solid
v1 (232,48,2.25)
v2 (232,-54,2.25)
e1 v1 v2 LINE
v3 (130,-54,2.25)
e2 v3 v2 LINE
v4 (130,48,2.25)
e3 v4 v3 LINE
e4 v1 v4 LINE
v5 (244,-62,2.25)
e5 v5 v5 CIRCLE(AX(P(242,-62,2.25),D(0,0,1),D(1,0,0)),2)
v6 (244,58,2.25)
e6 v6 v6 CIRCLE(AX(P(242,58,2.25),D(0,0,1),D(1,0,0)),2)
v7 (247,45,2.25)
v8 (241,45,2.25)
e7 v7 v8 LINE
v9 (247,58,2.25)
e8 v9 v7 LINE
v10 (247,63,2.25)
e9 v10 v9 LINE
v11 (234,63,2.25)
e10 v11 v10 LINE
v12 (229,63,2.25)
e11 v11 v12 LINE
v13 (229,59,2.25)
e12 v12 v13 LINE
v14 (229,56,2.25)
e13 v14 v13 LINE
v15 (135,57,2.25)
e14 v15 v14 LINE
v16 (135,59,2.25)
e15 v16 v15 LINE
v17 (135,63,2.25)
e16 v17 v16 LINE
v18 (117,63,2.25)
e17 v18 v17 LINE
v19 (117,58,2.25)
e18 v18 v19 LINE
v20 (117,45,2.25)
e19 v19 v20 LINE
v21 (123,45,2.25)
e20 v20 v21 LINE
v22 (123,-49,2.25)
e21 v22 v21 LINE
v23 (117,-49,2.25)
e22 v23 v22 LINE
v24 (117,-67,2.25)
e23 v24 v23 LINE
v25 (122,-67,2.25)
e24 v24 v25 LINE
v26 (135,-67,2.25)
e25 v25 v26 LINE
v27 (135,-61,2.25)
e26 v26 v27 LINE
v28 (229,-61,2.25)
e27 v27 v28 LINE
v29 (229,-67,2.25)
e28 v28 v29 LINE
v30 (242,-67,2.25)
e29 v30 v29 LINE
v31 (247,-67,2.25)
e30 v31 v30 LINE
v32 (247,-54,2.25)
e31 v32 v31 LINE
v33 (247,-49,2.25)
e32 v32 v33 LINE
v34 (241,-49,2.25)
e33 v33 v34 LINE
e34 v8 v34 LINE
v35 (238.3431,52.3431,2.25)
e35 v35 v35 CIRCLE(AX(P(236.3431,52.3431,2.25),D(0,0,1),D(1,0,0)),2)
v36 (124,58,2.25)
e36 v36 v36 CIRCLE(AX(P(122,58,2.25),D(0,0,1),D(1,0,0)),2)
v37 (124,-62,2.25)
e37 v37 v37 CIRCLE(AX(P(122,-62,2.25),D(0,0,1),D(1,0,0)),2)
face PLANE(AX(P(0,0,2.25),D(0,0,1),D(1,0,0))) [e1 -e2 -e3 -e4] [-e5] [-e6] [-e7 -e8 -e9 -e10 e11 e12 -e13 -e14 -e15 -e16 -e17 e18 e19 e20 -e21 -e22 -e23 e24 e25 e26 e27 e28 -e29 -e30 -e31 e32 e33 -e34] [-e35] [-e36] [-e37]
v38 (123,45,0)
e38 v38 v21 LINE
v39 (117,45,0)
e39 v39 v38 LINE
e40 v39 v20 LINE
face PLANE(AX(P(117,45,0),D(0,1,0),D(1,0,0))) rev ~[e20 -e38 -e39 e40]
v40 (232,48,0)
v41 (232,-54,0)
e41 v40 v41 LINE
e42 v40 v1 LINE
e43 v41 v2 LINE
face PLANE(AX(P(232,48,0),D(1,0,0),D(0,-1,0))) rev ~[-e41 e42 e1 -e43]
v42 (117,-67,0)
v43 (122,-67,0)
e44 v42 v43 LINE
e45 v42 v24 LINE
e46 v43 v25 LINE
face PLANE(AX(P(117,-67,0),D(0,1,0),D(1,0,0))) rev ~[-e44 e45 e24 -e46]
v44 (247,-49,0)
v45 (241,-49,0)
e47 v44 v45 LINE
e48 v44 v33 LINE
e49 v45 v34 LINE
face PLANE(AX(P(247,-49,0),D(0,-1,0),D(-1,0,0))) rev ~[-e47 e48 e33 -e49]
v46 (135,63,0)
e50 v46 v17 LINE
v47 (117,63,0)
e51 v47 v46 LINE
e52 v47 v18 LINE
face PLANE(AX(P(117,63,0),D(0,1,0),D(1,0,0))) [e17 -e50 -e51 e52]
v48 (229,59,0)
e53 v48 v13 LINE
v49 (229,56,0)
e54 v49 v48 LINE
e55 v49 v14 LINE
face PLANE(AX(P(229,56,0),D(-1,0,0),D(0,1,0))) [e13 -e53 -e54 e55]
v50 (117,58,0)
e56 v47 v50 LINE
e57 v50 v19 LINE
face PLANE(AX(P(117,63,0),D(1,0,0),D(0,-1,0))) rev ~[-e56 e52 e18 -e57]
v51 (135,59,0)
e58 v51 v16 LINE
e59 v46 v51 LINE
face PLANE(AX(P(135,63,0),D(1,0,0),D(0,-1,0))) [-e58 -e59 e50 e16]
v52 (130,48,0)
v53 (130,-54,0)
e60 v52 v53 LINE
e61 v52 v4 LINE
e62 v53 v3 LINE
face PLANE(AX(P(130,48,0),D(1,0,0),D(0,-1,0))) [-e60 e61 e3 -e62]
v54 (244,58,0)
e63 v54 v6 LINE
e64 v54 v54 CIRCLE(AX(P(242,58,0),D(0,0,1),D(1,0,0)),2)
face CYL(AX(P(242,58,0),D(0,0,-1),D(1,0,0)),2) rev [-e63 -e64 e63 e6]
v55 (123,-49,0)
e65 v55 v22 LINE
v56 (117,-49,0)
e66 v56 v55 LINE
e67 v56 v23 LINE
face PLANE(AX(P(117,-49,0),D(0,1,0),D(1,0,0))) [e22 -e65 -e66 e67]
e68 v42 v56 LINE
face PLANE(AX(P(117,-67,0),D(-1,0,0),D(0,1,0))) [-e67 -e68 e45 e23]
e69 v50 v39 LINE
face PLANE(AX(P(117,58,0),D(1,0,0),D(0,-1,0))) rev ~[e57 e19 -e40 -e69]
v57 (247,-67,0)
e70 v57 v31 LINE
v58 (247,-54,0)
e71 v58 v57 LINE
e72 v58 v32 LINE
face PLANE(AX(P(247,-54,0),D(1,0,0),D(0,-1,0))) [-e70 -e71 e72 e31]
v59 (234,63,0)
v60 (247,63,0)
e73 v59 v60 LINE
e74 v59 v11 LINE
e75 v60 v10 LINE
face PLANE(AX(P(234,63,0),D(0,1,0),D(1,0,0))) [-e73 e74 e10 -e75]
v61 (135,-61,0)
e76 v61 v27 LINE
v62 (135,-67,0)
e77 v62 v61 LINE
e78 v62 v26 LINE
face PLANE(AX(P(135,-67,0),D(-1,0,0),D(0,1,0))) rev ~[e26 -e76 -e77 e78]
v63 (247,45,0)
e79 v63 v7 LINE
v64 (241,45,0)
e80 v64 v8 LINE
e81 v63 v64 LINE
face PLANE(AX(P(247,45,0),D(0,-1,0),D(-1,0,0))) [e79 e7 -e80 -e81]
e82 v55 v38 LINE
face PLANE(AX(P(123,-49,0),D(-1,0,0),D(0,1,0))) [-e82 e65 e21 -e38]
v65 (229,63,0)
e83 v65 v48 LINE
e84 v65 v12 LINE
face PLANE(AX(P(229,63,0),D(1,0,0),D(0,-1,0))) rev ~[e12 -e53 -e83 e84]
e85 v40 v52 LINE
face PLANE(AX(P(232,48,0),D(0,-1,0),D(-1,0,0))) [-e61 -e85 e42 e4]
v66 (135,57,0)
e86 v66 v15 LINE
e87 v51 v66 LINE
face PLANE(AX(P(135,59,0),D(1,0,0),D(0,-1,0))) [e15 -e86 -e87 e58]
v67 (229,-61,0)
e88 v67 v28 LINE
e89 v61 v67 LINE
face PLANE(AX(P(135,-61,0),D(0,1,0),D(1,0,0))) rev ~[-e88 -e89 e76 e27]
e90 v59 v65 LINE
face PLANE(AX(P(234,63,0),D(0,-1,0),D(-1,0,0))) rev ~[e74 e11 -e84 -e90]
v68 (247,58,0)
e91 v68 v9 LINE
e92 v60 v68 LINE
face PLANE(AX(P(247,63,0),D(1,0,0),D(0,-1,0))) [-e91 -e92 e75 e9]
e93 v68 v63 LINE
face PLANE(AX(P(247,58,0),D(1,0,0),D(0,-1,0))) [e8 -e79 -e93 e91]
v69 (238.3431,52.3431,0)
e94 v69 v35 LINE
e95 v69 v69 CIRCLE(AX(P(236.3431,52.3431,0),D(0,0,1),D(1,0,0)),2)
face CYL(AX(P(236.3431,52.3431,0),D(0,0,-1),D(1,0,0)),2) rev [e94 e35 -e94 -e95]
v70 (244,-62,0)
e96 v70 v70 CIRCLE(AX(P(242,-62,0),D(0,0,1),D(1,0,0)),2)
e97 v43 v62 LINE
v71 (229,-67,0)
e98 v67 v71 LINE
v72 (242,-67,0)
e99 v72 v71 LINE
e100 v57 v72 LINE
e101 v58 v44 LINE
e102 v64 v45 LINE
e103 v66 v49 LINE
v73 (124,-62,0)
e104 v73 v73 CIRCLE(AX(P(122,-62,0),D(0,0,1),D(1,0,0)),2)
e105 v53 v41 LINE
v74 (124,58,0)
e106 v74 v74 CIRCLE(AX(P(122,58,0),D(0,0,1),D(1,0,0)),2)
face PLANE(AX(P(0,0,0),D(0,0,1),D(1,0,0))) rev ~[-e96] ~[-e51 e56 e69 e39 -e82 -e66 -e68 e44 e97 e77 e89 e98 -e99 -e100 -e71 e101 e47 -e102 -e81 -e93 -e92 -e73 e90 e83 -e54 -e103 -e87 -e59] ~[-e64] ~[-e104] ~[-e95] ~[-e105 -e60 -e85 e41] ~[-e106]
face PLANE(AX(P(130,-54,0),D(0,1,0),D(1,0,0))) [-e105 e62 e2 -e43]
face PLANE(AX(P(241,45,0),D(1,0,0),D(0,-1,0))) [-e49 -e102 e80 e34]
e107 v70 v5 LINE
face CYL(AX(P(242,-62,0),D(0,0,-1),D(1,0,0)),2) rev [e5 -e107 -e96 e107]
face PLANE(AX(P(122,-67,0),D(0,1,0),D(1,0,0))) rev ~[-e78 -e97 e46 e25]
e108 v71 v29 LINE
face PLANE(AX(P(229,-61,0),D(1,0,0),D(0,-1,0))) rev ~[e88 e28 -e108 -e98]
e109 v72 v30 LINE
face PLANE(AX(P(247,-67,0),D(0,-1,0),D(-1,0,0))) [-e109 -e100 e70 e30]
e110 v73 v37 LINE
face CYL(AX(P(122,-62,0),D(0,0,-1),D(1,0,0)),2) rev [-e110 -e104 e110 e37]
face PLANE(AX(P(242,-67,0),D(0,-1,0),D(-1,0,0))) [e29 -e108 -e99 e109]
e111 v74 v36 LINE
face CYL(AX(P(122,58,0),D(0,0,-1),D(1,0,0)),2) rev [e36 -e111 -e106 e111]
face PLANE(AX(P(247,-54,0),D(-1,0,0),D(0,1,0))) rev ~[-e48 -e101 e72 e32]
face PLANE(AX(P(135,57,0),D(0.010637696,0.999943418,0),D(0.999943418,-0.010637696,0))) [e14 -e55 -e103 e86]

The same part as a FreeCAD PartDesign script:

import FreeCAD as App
import Part
import Sketcher

V = App.Vector
Q = App.Units.Quantity

doc = App.newDocument("Part")
body = doc.addObject("PartDesign::Body", "Body")

# Sketch on XY plane
sketch1 = body.newObject("Sketcher::SketchObject", "Sketch")
sketch1.AttachmentSupport = (doc.getObject("XY_Plane"), [""])
sketch1.MapMode = "FlatFace"
sketch1.addGeometry([
    Part.LineSegment(V(247, 63, 0), V(229, 63, 0)),  # 0
    Part.LineSegment(V(229, 63, 0), V(229, 56, 0)),  # 1
    Part.LineSegment(V(229, 56, 0), V(135, 57, 0)),  # 2
    Part.LineSegment(V(135, 57, 0), V(135, 63, 0)),  # 3
    Part.LineSegment(V(135, 63, 0), V(117, 63, 0)),  # 4
    Part.LineSegment(V(117, 63, 0), V(117, 45, 0)),  # 5
    Part.LineSegment(V(117, 45, 0), V(123, 45, 0)),  # 6
    Part.LineSegment(V(123, 45, 0), V(123, -49, 0)),  # 7
    Part.LineSegment(V(123, -49, 0), V(117, -49, 0)),  # 8
    Part.LineSegment(V(117, -49, 0), V(117, -67, 0)),  # 9
    Part.LineSegment(V(117, -67, 0), V(135, -67, 0)),  # 10
    Part.LineSegment(V(135, -67, 0), V(135, -61, 0)),  # 11
    Part.LineSegment(V(135, -61, 0), V(229, -61, 0)),  # 12
    Part.LineSegment(V(229, -61, 0), V(229, -67, 0)),  # 13
    Part.LineSegment(V(229, -67, 0), V(247, -67, 0)),  # 14
    Part.LineSegment(V(247, -67, 0), V(247, -49, 0)),  # 15
    Part.LineSegment(V(247, -49, 0), V(241, -49, 0)),  # 16
    Part.LineSegment(V(241, -49, 0), V(241, 45, 0)),  # 17
    Part.LineSegment(V(241, 45, 0), V(247, 45, 0)),  # 18
    Part.LineSegment(V(247, 45, 0), V(247, 63, 0)),  # 19
    Part.Circle(V(122, -62, 0), V(0, 0, 1), 2),  # 20
    Part.LineSegment(V(130, -54, 0), V(130, 48, 0)),  # 21
    Part.LineSegment(V(130, 48, 0), V(232, 48, 0)),  # 22
    Part.LineSegment(V(232, 48, 0), V(232, -54, 0)),  # 23
    Part.LineSegment(V(232, -54, 0), V(130, -54, 0)),  # 24
    Part.Circle(V(242, -62, 0), V(0, 0, 1), 2),  # 25
    Part.Circle(V(122, 58, 0), V(0, 0, 1), 2),  # 26
    Part.Circle(V(236.3, 52.3, 0), V(0, 0, 1), 2),  # 27
    Part.Circle(V(242, 58, 0), V(0, 0, 1), 2),  # 28
], False)
sketch1.addConstraint([
    Sketcher.Constraint("Coincident", 0, 2, 1, 1),
    Sketcher.Constraint("Coincident", 1, 2, 2, 1),
    Sketcher.Constraint("Coincident", 2, 2, 3, 1),
    Sketcher.Constraint("Coincident", 3, 2, 4, 1),
    Sketcher.Constraint("Coincident", 4, 2, 5, 1),
    Sketcher.Constraint("Coincident", 5, 2, 6, 1),
    Sketcher.Constraint("Coincident", 6, 2, 7, 1),
    Sketcher.Constraint("Coincident", 7, 2, 8, 1),
    Sketcher.Constraint("Coincident", 8, 2, 9, 1),
    Sketcher.Constraint("Coincident", 9, 2, 10, 1),
    Sketcher.Constraint("Coincident", 10, 2, 11, 1),
    Sketcher.Constraint("Coincident", 11, 2, 12, 1),
    Sketcher.Constraint("Coincident", 12, 2, 13, 1),
    Sketcher.Constraint("Coincident", 13, 2, 14, 1),
    Sketcher.Constraint("Coincident", 14, 2, 15, 1),
    Sketcher.Constraint("Coincident", 15, 2, 16, 1),
    Sketcher.Constraint("Coincident", 16, 2, 17, 1),
    Sketcher.Constraint("Coincident", 17, 2, 18, 1),
    Sketcher.Constraint("Coincident", 18, 2, 19, 1),
    Sketcher.Constraint("Coincident", 19, 2, 0, 1),
    Sketcher.Constraint("Coincident", 21, 2, 22, 1),
    Sketcher.Constraint("Coincident", 22, 2, 23, 1),
    Sketcher.Constraint("Coincident", 23, 2, 24, 1),
    Sketcher.Constraint("Coincident", 24, 2, 21, 1),
    Sketcher.Constraint("Horizontal", 0),
    Sketcher.Constraint("Vertical", 1),
    Sketcher.Constraint("Vertical", 3),
    Sketcher.Constraint("Horizontal", 4),
    Sketcher.Constraint("Vertical", 5),
    Sketcher.Constraint("Horizontal", 6),
    Sketcher.Constraint("Vertical", 7),
    Sketcher.Constraint("Horizontal", 8),
    Sketcher.Constraint("Vertical", 9),
    Sketcher.Constraint("Horizontal", 10),
    Sketcher.Constraint("Vertical", 11),
    Sketcher.Constraint("Horizontal", 12),
    Sketcher.Constraint("Vertical", 13),
    Sketcher.Constraint("Horizontal", 14),
    Sketcher.Constraint("Vertical", 15),
    Sketcher.Constraint("Horizontal", 16),
    Sketcher.Constraint("Vertical", 17),
    Sketcher.Constraint("Horizontal", 18),
    Sketcher.Constraint("Vertical", 19),
    Sketcher.Constraint("Vertical", 21),
    Sketcher.Constraint("Horizontal", 22),
    Sketcher.Constraint("Vertical", 23),
    Sketcher.Constraint("Horizontal", 24),
    Sketcher.Constraint("Equal", 20, 25),
    Sketcher.Constraint("Equal", 25, 26),
    Sketcher.Constraint("Equal", 26, 27),
    Sketcher.Constraint("Equal", 27, 28),
    Sketcher.Constraint("Horizontal", 20, 3, 25, 3),
    Sketcher.Constraint("Horizontal", 26, 3, 28, 3),
    Sketcher.Constraint("Horizontal", 0, 2, 3, 2),
    Sketcher.Constraint("Horizontal", 10, 2, 13, 2),
    Sketcher.Constraint("Horizontal", 8, 2, 15, 2),
    Sketcher.Constraint("Horizontal", 6, 2, 17, 2),
    Sketcher.Constraint("Vertical", 20, 3, 26, 3),
    Sketcher.Constraint("Vertical", 25, 3, 28, 3),
    Sketcher.Constraint("Vertical", 5, 2, 8, 2),
    Sketcher.Constraint("Vertical", 3, 2, 10, 2),
    Sketcher.Constraint("Vertical", 1, 2, 12, 2),
    Sketcher.Constraint("Vertical", 15, 2, 18, 2),
    Sketcher.Constraint("Equal", 0, 4),
    Sketcher.Constraint("Equal", 8, 16),
    Sketcher.Constraint("Equal", 18, 3),
    Sketcher.Constraint("Equal", 14, 5),
    Sketcher.Constraint("Equal", 12, 7),
    Sketcher.Constraint("Equal", 5, 9),
    Sketcher.Constraint("Equal", 3, 11),
    Sketcher.Constraint("Equal", 24, 21),
    Sketcher.Constraint("Diameter", 20, Q("4 mm")),
    Sketcher.Constraint("DistanceX", 0, 2, 0, 1, Q("18 mm")),
    Sketcher.Constraint("DistanceX", 6, 1, 6, 2, Q("6 mm")),
    Sketcher.Constraint("DistanceX", -1, 1, 21, 2, Q("130 mm")),
    Sketcher.Constraint("DistanceX", 0, 2, 28, 3, Q("13 mm")),
    Sketcher.Constraint("DistanceY", 28, 3, 0, 2, Q("5 mm")),
    Sketcher.Constraint("DistanceX", 26, 3, 2, 2, Q("13 mm")),
    Sketcher.Constraint("DistanceY", 20, 3, 7, 2, Q("13 mm")),
    Sketcher.Constraint("DistanceX", 21, 2, 2, 2, Q("5 mm")),
    Sketcher.Constraint("DistanceY", 22, 2, 1, 2, Q("8 mm")),
    Sketcher.Constraint("DistanceY", 23, 2, 16, 2, Q("5 mm")),
    Sketcher.Constraint("DistanceX", 12, 1, 12, 2, Q("94 mm")),
    Sketcher.Constraint("DistanceX", 22, 1, 22, 2, Q("102 mm")),
    Sketcher.Constraint("DistanceY", 20, 3, -1, 1, Q("62 mm")),
    Sketcher.Constraint("DistanceX", -1, 1, 27, 3, Q("236.343 mm")),
    Sketcher.Constraint("DistanceY", -1, 1, 27, 3, Q("52.343 mm")),
])
pad1 = body.newObject("PartDesign::Pad", "Pad")
pad1.Profile = sketch1
pad1.Length = 2.25

doc.recompute()
